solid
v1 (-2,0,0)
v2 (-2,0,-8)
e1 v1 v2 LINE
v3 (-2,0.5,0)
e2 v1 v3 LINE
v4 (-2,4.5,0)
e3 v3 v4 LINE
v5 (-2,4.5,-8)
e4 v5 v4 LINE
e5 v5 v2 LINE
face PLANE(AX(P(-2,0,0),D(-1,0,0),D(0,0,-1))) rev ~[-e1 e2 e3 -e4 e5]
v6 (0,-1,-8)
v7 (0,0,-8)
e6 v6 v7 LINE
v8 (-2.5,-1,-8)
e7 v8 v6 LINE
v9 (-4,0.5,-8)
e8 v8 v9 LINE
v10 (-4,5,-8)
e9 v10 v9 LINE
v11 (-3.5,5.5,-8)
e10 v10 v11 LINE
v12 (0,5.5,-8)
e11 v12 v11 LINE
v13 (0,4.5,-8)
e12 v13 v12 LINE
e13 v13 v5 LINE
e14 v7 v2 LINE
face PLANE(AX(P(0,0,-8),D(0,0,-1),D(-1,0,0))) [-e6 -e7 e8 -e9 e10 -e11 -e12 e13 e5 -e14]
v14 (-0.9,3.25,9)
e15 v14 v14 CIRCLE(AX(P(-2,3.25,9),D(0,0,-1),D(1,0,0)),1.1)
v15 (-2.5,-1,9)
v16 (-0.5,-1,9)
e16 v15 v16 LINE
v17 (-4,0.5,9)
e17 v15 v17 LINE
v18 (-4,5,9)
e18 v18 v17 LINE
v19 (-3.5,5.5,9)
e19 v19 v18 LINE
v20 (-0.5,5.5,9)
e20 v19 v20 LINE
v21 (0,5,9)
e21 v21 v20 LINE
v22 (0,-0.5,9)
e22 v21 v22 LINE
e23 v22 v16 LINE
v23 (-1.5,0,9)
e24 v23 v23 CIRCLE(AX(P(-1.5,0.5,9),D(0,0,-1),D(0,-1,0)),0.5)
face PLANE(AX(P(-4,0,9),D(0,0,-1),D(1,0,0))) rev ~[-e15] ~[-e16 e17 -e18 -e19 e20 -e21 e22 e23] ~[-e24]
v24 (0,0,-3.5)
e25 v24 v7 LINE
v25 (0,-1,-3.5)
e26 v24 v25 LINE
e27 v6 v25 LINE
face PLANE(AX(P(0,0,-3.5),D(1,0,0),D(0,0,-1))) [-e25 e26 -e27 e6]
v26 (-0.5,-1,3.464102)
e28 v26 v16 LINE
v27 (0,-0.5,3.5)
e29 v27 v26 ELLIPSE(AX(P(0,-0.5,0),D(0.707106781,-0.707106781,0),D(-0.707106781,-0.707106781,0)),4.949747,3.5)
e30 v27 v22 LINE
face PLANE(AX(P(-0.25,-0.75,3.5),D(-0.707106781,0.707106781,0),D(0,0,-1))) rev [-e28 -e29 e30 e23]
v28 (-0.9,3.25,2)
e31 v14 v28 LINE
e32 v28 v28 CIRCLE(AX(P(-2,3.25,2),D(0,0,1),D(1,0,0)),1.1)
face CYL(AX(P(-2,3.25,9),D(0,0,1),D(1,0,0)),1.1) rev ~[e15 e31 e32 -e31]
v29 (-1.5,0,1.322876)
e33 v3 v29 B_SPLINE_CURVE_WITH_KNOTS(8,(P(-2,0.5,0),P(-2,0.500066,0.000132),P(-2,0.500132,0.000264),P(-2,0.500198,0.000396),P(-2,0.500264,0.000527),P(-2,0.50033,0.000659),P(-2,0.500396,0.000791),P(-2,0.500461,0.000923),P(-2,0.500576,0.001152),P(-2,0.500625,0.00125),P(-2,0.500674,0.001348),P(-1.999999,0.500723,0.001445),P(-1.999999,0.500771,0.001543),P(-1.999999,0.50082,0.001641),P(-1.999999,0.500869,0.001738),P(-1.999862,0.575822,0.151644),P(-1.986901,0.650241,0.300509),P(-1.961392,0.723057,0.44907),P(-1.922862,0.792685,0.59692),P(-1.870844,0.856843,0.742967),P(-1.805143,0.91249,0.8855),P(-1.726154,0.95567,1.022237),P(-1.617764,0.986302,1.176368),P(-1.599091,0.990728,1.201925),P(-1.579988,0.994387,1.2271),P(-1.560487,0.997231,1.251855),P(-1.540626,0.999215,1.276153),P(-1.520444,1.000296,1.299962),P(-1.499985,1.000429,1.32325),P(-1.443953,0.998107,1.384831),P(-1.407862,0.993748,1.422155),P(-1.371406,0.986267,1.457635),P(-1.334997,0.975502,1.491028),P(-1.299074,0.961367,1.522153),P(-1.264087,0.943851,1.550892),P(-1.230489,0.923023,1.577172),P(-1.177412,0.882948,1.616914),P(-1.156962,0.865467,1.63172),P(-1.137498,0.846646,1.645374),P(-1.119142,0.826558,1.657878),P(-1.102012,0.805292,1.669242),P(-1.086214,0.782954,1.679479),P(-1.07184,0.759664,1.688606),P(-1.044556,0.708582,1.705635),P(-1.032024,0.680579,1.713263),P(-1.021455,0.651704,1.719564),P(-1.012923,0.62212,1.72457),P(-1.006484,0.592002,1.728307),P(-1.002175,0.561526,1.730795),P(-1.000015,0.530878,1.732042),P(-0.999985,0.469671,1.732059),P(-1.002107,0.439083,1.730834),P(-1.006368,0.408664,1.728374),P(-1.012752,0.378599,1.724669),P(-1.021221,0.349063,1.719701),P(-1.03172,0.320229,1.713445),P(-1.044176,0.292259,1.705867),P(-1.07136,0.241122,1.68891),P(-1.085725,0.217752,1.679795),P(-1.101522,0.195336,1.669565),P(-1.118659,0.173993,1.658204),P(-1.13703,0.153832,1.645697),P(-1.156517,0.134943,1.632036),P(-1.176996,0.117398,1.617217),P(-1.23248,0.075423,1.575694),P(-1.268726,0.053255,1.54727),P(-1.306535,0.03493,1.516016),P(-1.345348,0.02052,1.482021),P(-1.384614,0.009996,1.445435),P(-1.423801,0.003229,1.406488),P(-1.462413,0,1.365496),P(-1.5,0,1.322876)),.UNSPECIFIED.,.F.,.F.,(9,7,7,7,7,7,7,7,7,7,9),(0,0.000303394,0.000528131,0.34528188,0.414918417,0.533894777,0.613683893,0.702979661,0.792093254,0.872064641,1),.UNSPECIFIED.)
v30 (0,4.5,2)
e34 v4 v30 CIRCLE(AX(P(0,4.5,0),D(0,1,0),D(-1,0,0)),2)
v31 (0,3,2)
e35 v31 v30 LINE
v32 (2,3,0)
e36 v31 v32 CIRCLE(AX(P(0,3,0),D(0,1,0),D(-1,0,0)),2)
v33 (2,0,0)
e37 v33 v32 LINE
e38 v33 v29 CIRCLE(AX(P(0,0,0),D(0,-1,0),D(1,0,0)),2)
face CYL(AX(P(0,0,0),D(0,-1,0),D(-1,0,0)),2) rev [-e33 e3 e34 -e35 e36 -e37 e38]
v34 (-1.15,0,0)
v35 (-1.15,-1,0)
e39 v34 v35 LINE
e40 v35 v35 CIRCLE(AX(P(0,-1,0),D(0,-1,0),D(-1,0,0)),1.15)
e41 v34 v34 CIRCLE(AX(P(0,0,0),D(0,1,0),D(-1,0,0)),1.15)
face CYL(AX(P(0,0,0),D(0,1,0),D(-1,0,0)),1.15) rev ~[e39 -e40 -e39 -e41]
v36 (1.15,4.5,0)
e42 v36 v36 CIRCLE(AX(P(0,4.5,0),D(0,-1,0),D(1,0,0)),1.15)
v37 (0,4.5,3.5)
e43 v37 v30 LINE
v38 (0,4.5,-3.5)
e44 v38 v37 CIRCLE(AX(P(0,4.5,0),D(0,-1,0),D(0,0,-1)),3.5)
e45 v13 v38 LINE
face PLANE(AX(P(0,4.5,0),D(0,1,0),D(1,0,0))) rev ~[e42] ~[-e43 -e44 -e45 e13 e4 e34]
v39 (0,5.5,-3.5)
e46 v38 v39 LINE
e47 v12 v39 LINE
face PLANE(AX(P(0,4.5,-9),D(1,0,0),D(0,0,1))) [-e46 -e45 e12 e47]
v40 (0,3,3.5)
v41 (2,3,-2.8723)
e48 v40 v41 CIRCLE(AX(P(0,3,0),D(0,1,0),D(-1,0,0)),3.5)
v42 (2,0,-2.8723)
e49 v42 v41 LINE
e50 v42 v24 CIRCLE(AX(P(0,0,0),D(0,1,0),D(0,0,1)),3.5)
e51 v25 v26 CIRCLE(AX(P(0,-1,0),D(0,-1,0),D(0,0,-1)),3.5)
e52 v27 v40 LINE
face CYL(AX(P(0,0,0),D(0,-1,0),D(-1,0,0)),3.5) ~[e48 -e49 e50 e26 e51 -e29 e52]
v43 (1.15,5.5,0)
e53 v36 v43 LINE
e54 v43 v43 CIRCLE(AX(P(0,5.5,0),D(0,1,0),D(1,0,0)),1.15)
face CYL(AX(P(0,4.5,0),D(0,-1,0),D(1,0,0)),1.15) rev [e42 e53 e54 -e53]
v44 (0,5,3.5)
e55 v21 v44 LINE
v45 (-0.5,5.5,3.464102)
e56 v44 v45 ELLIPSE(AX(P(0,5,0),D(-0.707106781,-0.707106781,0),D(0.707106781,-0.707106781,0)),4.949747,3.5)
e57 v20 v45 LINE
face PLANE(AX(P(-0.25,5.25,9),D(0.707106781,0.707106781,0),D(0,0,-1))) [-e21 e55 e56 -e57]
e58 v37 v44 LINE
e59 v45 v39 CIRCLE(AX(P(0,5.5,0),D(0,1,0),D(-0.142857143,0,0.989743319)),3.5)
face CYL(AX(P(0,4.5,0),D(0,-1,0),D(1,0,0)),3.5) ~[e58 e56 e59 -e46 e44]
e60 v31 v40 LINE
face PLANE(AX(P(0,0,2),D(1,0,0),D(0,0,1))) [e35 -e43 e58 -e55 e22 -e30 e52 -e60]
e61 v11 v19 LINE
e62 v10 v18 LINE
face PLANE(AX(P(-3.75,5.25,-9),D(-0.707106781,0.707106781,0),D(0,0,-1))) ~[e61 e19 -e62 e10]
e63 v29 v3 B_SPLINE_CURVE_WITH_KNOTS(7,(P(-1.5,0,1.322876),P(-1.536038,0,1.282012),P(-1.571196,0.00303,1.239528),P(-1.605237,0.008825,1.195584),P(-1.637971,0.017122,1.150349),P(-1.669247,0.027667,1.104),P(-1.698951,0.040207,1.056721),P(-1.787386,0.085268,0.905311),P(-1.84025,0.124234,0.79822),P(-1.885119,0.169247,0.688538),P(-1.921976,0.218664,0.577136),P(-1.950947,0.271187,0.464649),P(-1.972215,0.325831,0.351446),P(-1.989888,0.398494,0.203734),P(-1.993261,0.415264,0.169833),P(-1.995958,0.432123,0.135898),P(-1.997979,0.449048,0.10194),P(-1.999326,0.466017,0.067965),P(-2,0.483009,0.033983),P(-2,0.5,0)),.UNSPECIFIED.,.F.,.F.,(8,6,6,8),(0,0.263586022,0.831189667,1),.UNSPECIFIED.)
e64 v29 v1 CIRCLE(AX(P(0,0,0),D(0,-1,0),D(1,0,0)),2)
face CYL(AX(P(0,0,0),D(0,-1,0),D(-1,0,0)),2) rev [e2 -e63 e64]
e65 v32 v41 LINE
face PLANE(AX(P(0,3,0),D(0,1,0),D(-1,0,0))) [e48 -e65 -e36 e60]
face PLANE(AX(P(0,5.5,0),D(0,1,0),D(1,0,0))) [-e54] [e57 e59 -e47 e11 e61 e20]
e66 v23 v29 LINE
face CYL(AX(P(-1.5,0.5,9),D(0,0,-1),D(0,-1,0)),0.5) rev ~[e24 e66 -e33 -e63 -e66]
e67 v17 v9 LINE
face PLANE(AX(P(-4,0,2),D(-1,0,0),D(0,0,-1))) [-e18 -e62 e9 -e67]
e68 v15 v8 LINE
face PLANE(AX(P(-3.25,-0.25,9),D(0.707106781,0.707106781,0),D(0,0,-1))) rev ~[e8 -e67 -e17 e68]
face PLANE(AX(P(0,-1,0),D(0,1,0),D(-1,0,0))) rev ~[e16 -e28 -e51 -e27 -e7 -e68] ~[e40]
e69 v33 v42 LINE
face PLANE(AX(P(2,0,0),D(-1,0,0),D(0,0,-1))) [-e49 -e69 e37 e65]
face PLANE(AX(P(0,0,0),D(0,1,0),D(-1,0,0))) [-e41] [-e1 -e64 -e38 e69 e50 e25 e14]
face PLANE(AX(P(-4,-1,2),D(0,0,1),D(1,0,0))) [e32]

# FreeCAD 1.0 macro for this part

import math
import FreeCAD as App
import Part
import Sketcher

V = App.Vector
Q = App.Units.Quantity


def edges_at(feature, points):
    """Names of the edges that pass closest to the given points."""
    edges = feature.Shape.Edges
    near = lambda p: min(range(len(edges)), key=lambda i: edges[i].distToShape(Part.Vertex(*p))[0])
    return sorted({f"Edge{near(p) + 1}" for p in points})

doc = App.newDocument("Part")
params = doc.addObject("Spreadsheet::Sheet", "Params")
for row, (alias, value) in enumerate([
    ("sketch1_radius", "2 mm"),
    ("sketch1_radius2", "3.5 mm"),
    ("pad1_length", "3 mm"),
    ("sketch2_radius", "2 mm"),
    ("sketch2_width", "4 mm"),
    ("sketch2_height", "9 mm"),
    ("sketch2_height2", "7 mm"),
    ("pad2_length", "4.5 mm"),
    ("sketch3_diameter", "2.3 mm"),
    ("sketch3_radius", "3.5 mm"),
    ("sketch3_width", "4 mm"),
    ("pad3_length", "1 mm"),
    ("sketch4_diameter", "2.3 mm"),
    ("sketch4_radius", "3.5 mm"),
    ("sketch4_width", "4 mm"),
    ("pad4_length", "1 mm"),
    ("sketch5_diameter", "2.2 mm"),
    ("pocket1_length", "7 mm"),
    ("sketch6_diameter", "1 mm"),
    ("hole_diameter", "1 mm"),
    ("chamfer_size", "0.5 mm"),
    ("chamfer2_size", "1.5 mm"),
    ("sketch7_width", "4 mm"),
    ("sketch7_height", "6.5 mm"),
    ("pocket2_length", "1 mm"),
], start=1):
    params.set(f"A{row}", alias)
    params.set(f"B{row}", "=" + value)
    params.setAlias(f"B{row}", alias)

body = doc.addObject("PartDesign::Body", "Body")

# Sketch on XZ plane
sketch1 = doc.addObject("Sketcher::SketchObject", "Sketch")
body.addObject(sketch1)
sketch1.AttachmentSupport = (doc.XZ_Plane, [""])
sketch1.MapMode = "FlatFace"
sketch1.addGeometry([
    Part.ArcOfCircle(Part.Circle(V(0, 0, 0), V(0, 0, 1), 2), math.radians(0), math.radians(90)),
    Part.LineSegment(V(0, 2, 0), V(0, 3.5, 0)),
    Part.ArcOfCircle(Part.Circle(V(0, 0, 0), V(0, 0, 1), 3.5), math.radians(-55.15027), math.radians(90)),
    Part.LineSegment(V(2, -2.8723, 0), V(2, 0, 0)),
], False)
sketch1.addConstraint([
    Sketcher.Constraint("Coincident", 0, 2, 1, 1),
    Sketcher.Constraint("Coincident", 1, 2, 2, 2),
    Sketcher.Constraint("Coincident", 2, 1, 3, 1),
    Sketcher.Constraint("Tangent", 3, 2, 0, 1),
    Sketcher.Constraint("Vertical", 1),
    Sketcher.Constraint("Vertical", 3),
    Sketcher.Constraint("Coincident", 0, 3, -1, 1),
    Sketcher.Constraint("Coincident", 2, 3, -1, 1),
    Sketcher.Constraint("PointOnObject", 0, 2, -2),
    Sketcher.Constraint("Radius", 0, Q("2 mm")),
    Sketcher.Constraint("Radius", 2, Q("3.5 mm")),
])
sketch1.setExpression("Constraints[9]", "Params.sketch1_radius")
sketch1.setExpression("Constraints[10]", "Params.sketch1_radius2")
pad1 = doc.addObject("PartDesign::Pad", "Pad")
body.addObject(pad1)
pad1.Profile = sketch1
pad1.setExpression("Length", "Params.pad1_length")
pad1.Reversed = True

# Sketch on XZ plane
sketch2 = doc.addObject("Sketcher::SketchObject", "Sketch001")
body.addObject(sketch2)
sketch2.AttachmentSupport = (doc.XZ_Plane, [""])
sketch2.MapMode = "FlatFace"
sketch2.addGeometry([
    Part.LineSegment(V(-2, 0, 0), V(-2, -9, 0)),  # 0
    Part.LineSegment(V(-2, -9, 0), V(-4, -9, 0)),  # 1
    Part.LineSegment(V(-4, -9, 0), V(-4, 9, 0)),  # 2
    Part.LineSegment(V(-4, 9, 0), V(0, 9, 0)),  # 3
    Part.LineSegment(V(0, 9, 0), V(0, 2, 0)),  # 4
    Part.ArcOfCircle(Part.Circle(V(0, 0, 0), V(0, 0, 1), 2), math.radians(90), math.radians(180)),  # 5
], False)
sketch2.addConstraint([
    Sketcher.Constraint("Coincident", 0, 2, 1, 1),
    Sketcher.Constraint("Coincident", 1, 2, 2, 1),
    Sketcher.Constraint("Coincident", 2, 2, 3, 1),
    Sketcher.Constraint("Coincident", 3, 2, 4, 1),
    Sketcher.Constraint("Coincident", 4, 2, 5, 1),
    Sketcher.Constraint("Tangent", 5, 2, 0, 1),
    Sketcher.Constraint("Vertical", 0),
    Sketcher.Constraint("Horizontal", 1),
    Sketcher.Constraint("Vertical", 2),
    Sketcher.Constraint("Horizontal", 3),
    Sketcher.Constraint("Vertical", 4),
    Sketcher.Constraint("Coincident", 5, 3, -1, 1),
    Sketcher.Constraint("PointOnObject", 3, 2, -2),
    Sketcher.Constraint("Radius", 5, Q("2 mm")),
    Sketcher.Constraint("DistanceX", 3, 1, 3, 2, Q("4 mm")),
    Sketcher.Constraint("DistanceY", 0, 2, 0, 1, Q("9 mm")),
    Sketcher.Constraint("DistanceY", 4, 2, 4, 1, Q("7 mm")),
])
sketch2.setExpression("Constraints[13]", "Params.sketch2_radius")
sketch2.setExpression("Constraints[14]", "Params.sketch2_width")
sketch2.setExpression("Constraints[15]", "Params.sketch2_height")
sketch2.setExpression("Constraints[16]", "Params.sketch2_height2")
pad2 = doc.addObject("PartDesign::Pad", "Pad001")
body.addObject(pad2)
pad2.Profile = sketch2
pad2.setExpression("Length", "Params.pad2_length")
pad2.Reversed = True

# Sketch on XZ plane
sketch3 = doc.addObject("Sketcher::SketchObject", "Sketch002")
body.addObject(sketch3)
sketch3.AttachmentSupport = (doc.XZ_Plane, [""])
sketch3.MapMode = "FlatFace"
sketch3.addGeometry([
    Part.LineSegment(V(0, -3.5, 0), V(0, -9, 0)),  # 0
    Part.LineSegment(V(0, -9, 0), V(-4, -9, 0)),  # 1
    Part.LineSegment(V(-4, -9, 0), V(-4, 9, 0)),  # 2
    Part.LineSegment(V(-4, 9, 0), V(0, 9, 0)),  # 3
    Part.LineSegment(V(0, 9, 0), V(0, 3.5, 0)),  # 4
    Part.ArcOfCircle(Part.Circle(V(0, 0, 0), V(0, 0, 1), 3.5), math.radians(-90), math.radians(90)),  # 5
    Part.Circle(V(0, 0, 0), V(0, 0, 1), 1.15),  # 6
], False)
sketch3.addConstraint([
    Sketcher.Constraint("Coincident", 0, 2, 1, 1),
    Sketcher.Constraint("Coincident", 1, 2, 2, 1),
    Sketcher.Constraint("Coincident", 2, 2, 3, 1),
    Sketcher.Constraint("Coincident", 3, 2, 4, 1),
    Sketcher.Constraint("Coincident", 4, 2, 5, 2),
    Sketcher.Constraint("Coincident", 5, 1, 0, 1),
    Sketcher.Constraint("Vertical", 0),
    Sketcher.Constraint("Horizontal", 1),
    Sketcher.Constraint("Vertical", 2),
    Sketcher.Constraint("Horizontal", 3),
    Sketcher.Constraint("Vertical", 4),
    Sketcher.Constraint("Coincident", 5, 3, -1, 1),
    Sketcher.Constraint("Coincident", 6, 3, -1, 1),
    Sketcher.Constraint("Symmetric", 0, 2, 3, 2, -1, 1),
    Sketcher.Constraint("PointOnObject", 0, 2, -2),
    Sketcher.Constraint("Diameter", 6, Q("2.3 mm")),
    Sketcher.Constraint("Radius", 5, Q("3.5 mm")),
    Sketcher.Constraint("DistanceX", 1, 2, 1, 1, Q("4 mm")),
    Sketcher.Constraint("DistanceY", 0, 2, -1, 1, Q("9 mm")),
])
sketch3.setExpression("Constraints[15]", "Params.sketch3_diameter")
sketch3.setExpression("Constraints[16]", "Params.sketch3_radius")
sketch3.setExpression("Constraints[17]", "Params.sketch3_width")
pad3 = doc.addObject("PartDesign::Pad", "Pad002")
body.addObject(pad3)
pad3.Profile = sketch3
pad3.setExpression("Length", "Params.pad3_length")

# Sketch on XZ plane
sketch4 = doc.addObject("Sketcher::SketchObject", "Sketch003")
body.addObject(sketch4)
sketch4.AttachmentSupport = (doc.XZ_Plane, [""])
sketch4.MapMode = "FlatFace"
sketch4.AttachmentOffset = App.Placement(V(0, 0, -4.5), App.Rotation())
sketch4.addGeometry([
    Part.LineSegment(V(0, -3.5, 0), V(0, -9, 0)),  # 0
    Part.LineSegment(V(0, -9, 0), V(-4, -9, 0)),  # 1
    Part.LineSegment(V(-4, -9, 0), V(-4, 9, 0)),  # 2
    Part.LineSegment(V(-4, 9, 0), V(0, 9, 0)),  # 3
    Part.LineSegment(V(0, 9, 0), V(0, 3.5, 0)),  # 4
    Part.ArcOfCircle(Part.Circle(V(0, 0, 0), V(0, 0, 1), 3.5), math.radians(-90), math.radians(90)),  # 5
    Part.Circle(V(0, 0, 0), V(0, 0, 1), 1.15),  # 6
], False)
sketch4.addConstraint([
    Sketcher.Constraint("Coincident", 0, 2, 1, 1),
    Sketcher.Constraint("Coincident", 1, 2, 2, 1),
    Sketcher.Constraint("Coincident", 2, 2, 3, 1),
    Sketcher.Constraint("Coincident", 3, 2, 4, 1),
    Sketcher.Constraint("Coincident", 4, 2, 5, 2),
    Sketcher.Constraint("Coincident", 5, 1, 0, 1),
    Sketcher.Constraint("Vertical", 0),
    Sketcher.Constraint("Horizontal", 1),
    Sketcher.Constraint("Vertical", 2),
    Sketcher.Constraint("Horizontal", 3),
    Sketcher.Constraint("Vertical", 4),
    Sketcher.Constraint("Coincident", 5, 3, -1, 1),
    Sketcher.Constraint("Coincident", 6, 3, -1, 1),
    Sketcher.Constraint("Symmetric", 0, 2, 3, 2, -1, 1),
    Sketcher.Constraint("PointOnObject", 0, 2, -2),
    Sketcher.Constraint("Diameter", 6, Q("2.3 mm")),
    Sketcher.Constraint("Radius", 5, Q("3.5 mm")),
    Sketcher.Constraint("DistanceX", 1, 2, 1, 1, Q("4 mm")),
    Sketcher.Constraint("DistanceY", 0, 2, -1, 1, Q("9 mm")),
])
sketch4.setExpression("Constraints[15]", "Params.sketch4_diameter")
sketch4.setExpression("Constraints[16]", "Params.sketch4_radius")
sketch4.setExpression("Constraints[17]", "Params.sketch4_width")
pad4 = doc.addObject("PartDesign::Pad", "Pad003")
body.addObject(pad4)
pad4.Profile = sketch4
pad4.setExpression("Length", "Params.pad4_length")
pad4.Reversed = True

# Sketch on XY plane
sketch5 = doc.addObject("Sketcher::SketchObject", "Sketch004")
body.addObject(sketch5)
sketch5.AttachmentSupport = (doc.XY_Plane, [""])
sketch5.MapMode = "FlatFace"
sketch5.AttachmentOffset = App.Placement(V(0, 0, 9), App.Rotation())
sketch5.addGeometry(Part.Circle(V(-2, 3.25, 0), V(0, 0, 1), 1.1), False)
sketch5.addConstraint([
    Sketcher.Constraint("Diameter", 0, Q("2.2 mm")),
    Sketcher.Constraint("DistanceX", 0, 3, -1, 1, Q("2 mm")),
    Sketcher.Constraint("DistanceY", -1, 1, 0, 3, Q("3.25 mm")),
])
sketch5.setExpression("Constraints[0]", "Params.sketch5_diameter")
pocket1 = doc.addObject("PartDesign::Pocket", "Pocket")
body.addObject(pocket1)
pocket1.Profile = sketch5
pocket1.setExpression("Length", "Params.pocket1_length")

# Sketch on XY plane
sketch6 = doc.addObject("Sketcher::SketchObject", "Sketch005")
body.addObject(sketch6)
sketch6.AttachmentSupport = (doc.XY_Plane, [""])
sketch6.MapMode = "FlatFace"
sketch6.AttachmentOffset = App.Placement(V(0, 0, 9), App.Rotation())
sketch6.addGeometry(Part.Circle(V(-1.5, 0.5, 0), V(0, 0, 1), 0.5), False)
sketch6.addConstraint([
    Sketcher.Constraint("Diameter", 0, Q("1 mm")),
    Sketcher.Constraint("DistanceX", 0, 3, -1, 1, Q("1.5 mm")),
    Sketcher.Constraint("DistanceY", -1, 1, 0, 3, Q("0.5 mm")),
])
sketch6.setExpression("Constraints[0]", "Params.sketch6_diameter")
doc.recompute()
hole = doc.addObject("PartDesign::Hole", "Hole")
body.addObject(hole)
hole.Profile = sketch6
hole.ThreadType = "None"
hole.setExpression("Diameter", "Params.hole_diameter")
hole.DepthType = "ThroughAll"
doc.recompute()

chamfer = doc.addObject("PartDesign::Chamfer", "Chamfer")
body.addObject(chamfer)
chamfer.Base = (hole, edges_at(hole, [(0, -1, 6.25), (0, 5.5, 6.25), (-4, 5.5, 0)]))
chamfer.setExpression("Size", "Params.chamfer_size")
doc.recompute()

chamfer2 = doc.addObject("PartDesign::Chamfer", "Chamfer001")
body.addObject(chamfer2)
chamfer2.Base = (chamfer, edges_at(chamfer, [(-4, -1, 0)]))
chamfer2.setExpression("Size", "Params.chamfer2_size")

# Sketch on XY plane
sketch7 = doc.addObject("Sketcher::SketchObject", "Sketch006")
body.addObject(sketch7)
sketch7.AttachmentSupport = (doc.XY_Plane, [""])
sketch7.MapMode = "FlatFace"
sketch7.AttachmentOffset = App.Placement(V(0, 0, -9), App.Rotation())
sketch7.addGeometry([
    Part.LineSegment(V(-4, 5.5, 0), V(0, 5.5, 0)),
    Part.LineSegment(V(0, 5.5, 0), V(0, -1, 0)),
    Part.LineSegment(V(0, -1, 0), V(-4, -1, 0)),
    Part.LineSegment(V(-4, -1, 0), V(-4, 5.5, 0)),
], False)
sketch7.addConstraint([
    Sketcher.Constraint("Coincident", 0, 2, 1, 1),
    Sketcher.Constraint("Coincident", 1, 2, 2, 1),
    Sketcher.Constraint("Coincident", 2, 2, 3, 1),
    Sketcher.Constraint("Coincident", 3, 2, 0, 1),
    Sketcher.Constraint("Horizontal", 0),
    Sketcher.Constraint("Vertical", 1),
    Sketcher.Constraint("Horizontal", 2),
    Sketcher.Constraint("Vertical", 3),
    Sketcher.Constraint("PointOnObject", 0, 2, -2),
    Sketcher.Constraint("DistanceX", 0, 1, 0, 2, Q("4 mm")),
    Sketcher.Constraint("DistanceY", 1, 2, 1, 1, Q("6.5 mm")),
    Sketcher.Constraint("DistanceY", 1, 2, -1, 1, Q("1 mm")),
])
sketch7.setExpression("Constraints[9]", "Params.sketch7_width")
sketch7.setExpression("Constraints[10]", "Params.sketch7_height")
pocket2 = doc.addObject("PartDesign::Pocket", "Pocket001")
body.addObject(pocket2)
pocket2.Profile = sketch7
pocket2.setExpression("Length", "Params.pocket2_length")
pocket2.Reversed = True

doc.recompute()
